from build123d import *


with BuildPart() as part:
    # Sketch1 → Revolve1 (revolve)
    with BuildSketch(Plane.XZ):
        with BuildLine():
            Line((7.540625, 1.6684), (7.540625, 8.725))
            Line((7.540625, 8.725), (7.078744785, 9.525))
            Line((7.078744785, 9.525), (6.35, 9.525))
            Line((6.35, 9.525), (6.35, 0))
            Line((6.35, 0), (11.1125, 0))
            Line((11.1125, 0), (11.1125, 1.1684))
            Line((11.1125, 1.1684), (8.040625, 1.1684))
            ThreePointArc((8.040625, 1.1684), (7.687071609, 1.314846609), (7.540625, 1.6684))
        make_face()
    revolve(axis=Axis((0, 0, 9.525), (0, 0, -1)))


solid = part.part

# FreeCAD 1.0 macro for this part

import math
import FreeCAD as App
import Part
import Sketcher

V = App.Vector
Q = App.Units.Quantity

doc = App.newDocument("Part")
body = doc.addObject("PartDesign::Body", "Body")

sketch1 = body.newObject("Sketcher::SketchObject", "Sketch")
sketch1.AttachmentSupport = (doc.getObject("XZ_Plane"), [""])
sketch1.MapMode = "FlatFace"
sketch1.addGeometry([
    Part.LineSegment(V(7.54, 1.67, 0), V(7.54, 8.72, 0)),
    Part.LineSegment(V(7.54, 8.72, 0), V(7.08, 9.53, 0)),
    Part.LineSegment(V(7.08, 9.53, 0), V(6.35, 9.53, 0)),
    Part.LineSegment(V(6.35, 9.53, 0), V(6.35, 0, 0)),
    Part.LineSegment(V(6.35, 0, 0), V(11.11, 0, 0)),
    Part.LineSegment(V(11.11, 0, 0), V(11.11, 1.17, 0)),
    Part.LineSegment(V(11.11, 1.17, 0), V(8.04, 1.17, 0)),
    Part.ArcOfCircle(Part.Circle(V(8.04, 1.67, 0), V(0, 0, 1), 0.5), math.radians(180), math.radians(270)),
], False)
sketch1.addConstraint([
    Sketcher.Constraint("Coincident", 0, 2, 1, 1),
    Sketcher.Constraint("Coincident", 1, 2, 2, 1),
    Sketcher.Constraint("Coincident", 2, 2, 3, 1),
    Sketcher.Constraint("Coincident", 3, 2, 4, 1),
    Sketcher.Constraint("Coincident", 4, 2, 5, 1),
    Sketcher.Constraint("Coincident", 5, 2, 6, 1),
    Sketcher.Constraint("Tangent", 6, 2, 7, 2),
    Sketcher.Constraint("Tangent", 7, 1, 0, 1),
    Sketcher.Constraint("Vertical", 0),
    Sketcher.Constraint("Horizontal", 2),
    Sketcher.Constraint("Vertical", 3),
    Sketcher.Constraint("Horizontal", 4),
    Sketcher.Constraint("Vertical", 5),
    Sketcher.Constraint("Horizontal", 6),
    Sketcher.Constraint("PointOnObject", 3, 2, -1),
    Sketcher.Constraint("Angle", 1, Q("120 deg")),
    Sketcher.Constraint("DistanceX", 4, 1, 4, 2, Q("0.1875 in")),
    Sketcher.Constraint("DistanceY", 3, 2, 3, 1, Q("0.375 in")),
    Sketcher.Constraint("DistanceY", 5, 1, 5, 2, Q("0.046 in")),
    Sketcher.Constraint("DistanceX", -1, 1, 2, 2, Q("0.25 in")),
    Sketcher.Constraint("Radius", 7, Q("0.5 mm")),
    Sketcher.Constraint("DistanceX", -1, 1, 0, 2, Q("0.296875 in")),
    Sketcher.Constraint("DistanceY", 0, 1, 0, 2, Q("7.0566 mm")),
])
revolution = body.newObject("PartDesign::Revolution", "Revolution")
revolution.Profile = sketch1
revolution.ReferenceAxis = (sketch1, ["V_Axis"])
revolution.Angle = 360

doc.recompute()
